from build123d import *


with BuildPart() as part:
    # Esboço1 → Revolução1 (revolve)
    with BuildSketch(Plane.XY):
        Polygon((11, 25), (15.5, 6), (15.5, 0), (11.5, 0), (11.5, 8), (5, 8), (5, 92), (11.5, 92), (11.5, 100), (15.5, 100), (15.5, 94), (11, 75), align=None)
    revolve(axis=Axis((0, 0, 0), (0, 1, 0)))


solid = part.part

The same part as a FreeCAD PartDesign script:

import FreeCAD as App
import Part
import Sketcher

doc = App.newDocument("Part")
body = doc.addObject("PartDesign::Body", "Body")

sketch1 = doc.addObject("Sketcher::SketchObject", "Sketch")
body.addObject(sketch1)
sketch1.AttachmentSupport = (doc.XY_Plane, [""])
sketch1.MapMode = "FlatFace"
sketch1.addGeometry(Part.LineSegment(App.Vector(15.5, 6, 0), App.Vector(11, 25, 0)), False)
sketch1.addGeometry(Part.LineSegment(App.Vector(11, 25, 0), App.Vector(11, 75, 0)), False)
sketch1.addGeometry(Part.LineSegment(App.Vector(11, 75, 0), App.Vector(15.5, 94, 0)), False)
sketch1.addGeometry(Part.LineSegment(App.Vector(15.5, 94, 0), App.Vector(15.5, 100, 0)), False)
sketch1.addGeometry(Part.LineSegment(App.Vector(15.5, 100, 0), App.Vector(11.5, 100, 0)), False)
sketch1.addGeometry(Part.LineSegment(App.Vector(11.5, 100, 0), App.Vector(11.5, 92, 0)), False)
sketch1.addGeometry(Part.LineSegment(App.Vector(11.5, 92, 0), App.Vector(5, 92, 0)), False)
sketch1.addGeometry(Part.LineSegment(App.Vector(5, 92, 0), App.Vector(5, 8, 0)), False)
sketch1.addGeometry(Part.LineSegment(App.Vector(5, 8, 0), App.Vector(11.5, 8, 0)), False)
sketch1.addGeometry(Part.LineSegment(App.Vector(11.5, 8, 0), App.Vector(11.5, 0, 0)), False)
sketch1.addGeometry(Part.LineSegment(App.Vector(11.5, 0, 0), App.Vector(15.5, 0, 0)), False)
sketch1.addGeometry(Part.LineSegment(App.Vector(15.5, 0, 0), App.Vector(15.5, 6, 0)), False)
sketch1.addConstraint(Sketcher.Constraint("Coincident", 0, 2, 1, 1))
sketch1.addConstraint(Sketcher.Constraint("Coincident", 1, 2, 2, 1))
sketch1.addConstraint(Sketcher.Constraint("Coincident", 2, 2, 3, 1))
sketch1.addConstraint(Sketcher.Constraint("Coincident", 3, 2, 4, 1))
sketch1.addConstraint(Sketcher.Constraint("Coincident", 4, 2, 5, 1))
sketch1.addConstraint(Sketcher.Constraint("Coincident", 5, 2, 6, 1))
sketch1.addConstraint(Sketcher.Constraint("Coincident", 6, 2, 7, 1))
sketch1.addConstraint(Sketcher.Constraint("Coincident", 7, 2, 8, 1))
sketch1.addConstraint(Sketcher.Constraint("Coincident", 8, 2, 9, 1))
sketch1.addConstraint(Sketcher.Constraint("Coincident", 9, 2, 10, 1))
sketch1.addConstraint(Sketcher.Constraint("Coincident", 10, 2, 11, 1))
sketch1.addConstraint(Sketcher.Constraint("Coincident", 11, 2, 0, 1))
sketch1.addConstraint(Sketcher.Constraint("Vertical", 1))
sketch1.addConstraint(Sketcher.Constraint("Vertical", 3))
sketch1.addConstraint(Sketcher.Constraint("Horizontal", 4))
sketch1.addConstraint(Sketcher.Constraint("Vertical", 5))
sketch1.addConstraint(Sketcher.Constraint("Horizontal", 6))
sketch1.addConstraint(Sketcher.Constraint("Vertical", 7))
sketch1.addConstraint(Sketcher.Constraint("Horizontal", 8))
sketch1.addConstraint(Sketcher.Constraint("Vertical", 9))
sketch1.addConstraint(Sketcher.Constraint("Horizontal", 10))
sketch1.addConstraint(Sketcher.Constraint("Vertical", 11))
sketch1.addConstraint(Sketcher.Constraint("PointOnObject", 9, 2, -1))
sketch1.addConstraint(Sketcher.Constraint("Vertical", 5, 2, 8, 2))
sketch1.addConstraint(Sketcher.Constraint("Vertical", 3, 2, 10, 2))
sketch1.addConstraint(Sketcher.Constraint("Equal", 5, 9))
sketch1.addConstraint(Sketcher.Constraint("Equal", 3, 11))
sketch1.addConstraint(Sketcher.Constraint("Equal", 0, 2))
sketch1.addConstraint(Sketcher.Constraint("DistanceX", 4, 2, 4, 1, 4.0))
sketch1.addConstraint(Sketcher.Constraint("DistanceY", 1, 1, 1, 2, 50.0))
sketch1.addConstraint(Sketcher.Constraint("DistanceY", 3, 1, 3, 2, 6.0))
sketch1.addConstraint(Sketcher.Constraint("DistanceY", 5, 2, 5, 1, 8.0))
sketch1.addConstraint(Sketcher.Constraint("DistanceY", 7, 2, 7, 1, 84.0))
sketch1.addConstraint(Sketcher.Constraint("DistanceX", 6, 2, 6, 1, 6.5))
sketch1.addConstraint(Sketcher.Constraint("DistanceX", -1, 1, 0, 2, 11.0))
sketch1.addConstraint(Sketcher.Constraint("DistanceX", -1, 1, 6, 2, 5.0))
revolution = doc.addObject("PartDesign::Revolution", "Revolution")
body.addObject(revolution)
revolution.Profile = sketch1
revolution.ReferenceAxis = (sketch1, ["V_Axis"])
revolution.Angle = 360

doc.recompute()
